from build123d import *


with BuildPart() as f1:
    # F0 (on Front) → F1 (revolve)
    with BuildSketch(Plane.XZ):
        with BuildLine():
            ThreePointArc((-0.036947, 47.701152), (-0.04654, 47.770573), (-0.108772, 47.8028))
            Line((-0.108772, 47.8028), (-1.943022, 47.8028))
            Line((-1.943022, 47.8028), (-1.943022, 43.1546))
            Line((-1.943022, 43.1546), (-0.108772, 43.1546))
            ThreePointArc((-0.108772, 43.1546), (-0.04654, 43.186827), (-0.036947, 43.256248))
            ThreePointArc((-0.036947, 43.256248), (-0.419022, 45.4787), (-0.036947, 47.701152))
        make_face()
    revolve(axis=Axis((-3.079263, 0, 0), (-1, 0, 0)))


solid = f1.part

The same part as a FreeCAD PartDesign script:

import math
import FreeCAD as App
import Part
import Sketcher
Q = App.Units.Quantity

doc = App.newDocument("Part")
body = doc.addObject("PartDesign::Body", "Body")

# Sketch on XZ plane
sketch1 = body.newObject("Sketcher::SketchObject", "Sketch")
sketch1.AttachmentSupport = (doc.getObject("XZ_Plane"), [""])
sketch1.MapMode = "FlatFace"
sketch1.addGeometry([
    Part.ArcOfCircle(Part.Circle(App.Vector(-0.11, 47.73, 0), App.Vector(0, 0, 1), 0.08), math.radians(-20), math.radians(90)),  # 0
    Part.LineSegment(App.Vector(-0.11, 47.8, 0), App.Vector(-1.94, 47.8, 0)),  # 1
    Part.LineSegment(App.Vector(-1.94, 47.8, 0), App.Vector(-1.94, 43.15, 0)),  # 2
    Part.LineSegment(App.Vector(-1.94, 43.15, 0), App.Vector(-0.11, 43.15, 0)),  # 3
    Part.ArcOfCircle(Part.Circle(App.Vector(-0.11, 43.23, 0), App.Vector(0, 0, 1), 0.08), math.radians(-90), math.radians(20)),  # 4
    Part.ArcOfCircle(Part.Circle(App.Vector(6.24, 45.48, 0), App.Vector(0, 0, 1), 6.65), math.radians(160), math.radians(200)),  # 5
], False)
sketch1.addConstraint([
    Sketcher.Constraint("Tangent", 0, 2, 1, 1),
    Sketcher.Constraint("Coincident", 1, 2, 2, 1),
    Sketcher.Constraint("Coincident", 2, 2, 3, 1),
    Sketcher.Constraint("Tangent", 3, 2, 4, 1),
    Sketcher.Constraint("Coincident", 4, 2, 5, 2),
    Sketcher.Constraint("Coincident", 5, 1, 0, 1),
    Sketcher.Constraint("Horizontal", 1),
    Sketcher.Constraint("Vertical", 2),
    Sketcher.Constraint("Horizontal", 3),
    Sketcher.Constraint("Equal", 0, 4),
    Sketcher.Constraint("Vertical", 0, 3, 4, 3),
    Sketcher.Constraint("Vertical", 4, 2, 5, 1),
    Sketcher.Constraint("Radius", 0, Q("0.003 in")),
    Sketcher.Constraint("DistanceY", 2, 2, 2, 1, Q("0.183 in")),
    Sketcher.Constraint("DistanceY", -1, 1, 0, 3, Q("1.879 in")),
    Sketcher.Constraint("Radius", 5, Q("6.654811 mm")),
    Sketcher.Constraint("DistanceX", 1, 2, 1, 1, Q("1.83425 mm")),
    Sketcher.Constraint("DistanceX", 0, 3, -1, 1, Q("0.108772 mm")),
    Sketcher.Constraint("DistanceY", -1, 1, 4, 2, Q("43.256248 mm")),
])
revolution = body.newObject("PartDesign::Revolution", "Revolution")
revolution.Profile = sketch1
revolution.ReferenceAxis = (sketch1, ["H_Axis"])
revolution.Angle = 360

doc.recompute()
